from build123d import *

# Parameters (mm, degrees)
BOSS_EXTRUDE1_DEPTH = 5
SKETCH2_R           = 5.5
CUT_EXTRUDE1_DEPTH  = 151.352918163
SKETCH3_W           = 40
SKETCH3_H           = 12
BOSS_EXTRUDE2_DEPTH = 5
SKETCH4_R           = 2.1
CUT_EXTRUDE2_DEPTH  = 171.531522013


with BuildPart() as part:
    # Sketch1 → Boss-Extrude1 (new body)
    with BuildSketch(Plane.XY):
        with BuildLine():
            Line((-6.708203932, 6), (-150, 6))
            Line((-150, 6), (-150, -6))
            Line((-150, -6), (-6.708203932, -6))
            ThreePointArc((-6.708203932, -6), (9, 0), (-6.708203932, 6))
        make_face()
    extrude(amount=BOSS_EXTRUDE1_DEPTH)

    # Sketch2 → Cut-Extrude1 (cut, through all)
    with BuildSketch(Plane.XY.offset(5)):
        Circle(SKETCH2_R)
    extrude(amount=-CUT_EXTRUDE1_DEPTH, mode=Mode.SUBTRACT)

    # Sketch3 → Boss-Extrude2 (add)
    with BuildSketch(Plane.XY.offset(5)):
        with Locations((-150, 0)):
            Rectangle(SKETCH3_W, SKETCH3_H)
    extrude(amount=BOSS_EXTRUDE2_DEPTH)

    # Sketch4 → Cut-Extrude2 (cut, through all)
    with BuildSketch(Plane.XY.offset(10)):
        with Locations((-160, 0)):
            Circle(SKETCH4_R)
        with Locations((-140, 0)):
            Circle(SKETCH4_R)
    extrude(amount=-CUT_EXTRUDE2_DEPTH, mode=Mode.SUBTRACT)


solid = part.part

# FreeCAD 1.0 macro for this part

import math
import FreeCAD as App
import Part
import Sketcher
from FreeCAD import Vector

doc = App.newDocument("Part")
body = doc.addObject("PartDesign::Body", "Body")

# Sketch on XY plane
sketch1 = doc.addObject("Sketcher::SketchObject", "Sketch")
body.addObject(sketch1)
sketch1.AttachmentSupport = (doc.XY_Plane, [""])
sketch1.MapMode = "FlatFace"
sketch1.addGeometry([
    Part.LineSegment(Vector(-7, 6, 0), Vector(-150, 6, 0)),
    Part.LineSegment(Vector(-150, 6, 0), Vector(-150, -6, 0)),
    Part.LineSegment(Vector(-150, -6, 0), Vector(-7, -6, 0)),
    Part.ArcOfCircle(Part.Circle(Vector(0, 0, 0), Vector(0, 0, 1), 9), math.radians(-138), math.radians(138)),
], False)
sketch1.addConstraint([
    Sketcher.Constraint("Coincident", 0, 2, 1, 1),
    Sketcher.Constraint("Coincident", 1, 2, 2, 1),
    Sketcher.Constraint("Coincident", 2, 2, 3, 1),
    Sketcher.Constraint("Coincident", 3, 2, 0, 1),
    Sketcher.Constraint("Horizontal", 0),
    Sketcher.Constraint("Vertical", 1),
    Sketcher.Constraint("Horizontal", 2),
    Sketcher.Constraint("Coincident", 3, 3, -1, 1),
    Sketcher.Constraint("Vertical", 2, 2, 3, 2),
    Sketcher.Constraint("Radius", 3, 9.0),
    Sketcher.Constraint("DistanceY", 1, 2, 1, 1, 12.0),
    Sketcher.Constraint("DistanceX", 0, 2, -1, 1, 150.0),
])
pad1 = doc.addObject("PartDesign::Pad", "Pad")
body.addObject(pad1)
pad1.Profile = sketch1
pad1.Length = 5

# Sketch on XY plane
sketch2 = doc.addObject("Sketcher::SketchObject", "Sketch001")
body.addObject(sketch2)
sketch2.AttachmentSupport = (doc.XY_Plane, [""])
sketch2.MapMode = "FlatFace"
sketch2.AttachmentOffset = App.Placement(Vector(0, 0, 5), App.Rotation())
sketch2.addGeometry(Part.Circle(Vector(0, 0, 0), Vector(0, 0, 1), 6), False)
sketch2.addConstraint([
    Sketcher.Constraint("Coincident", 0, 3, -1, 1),
    Sketcher.Constraint("Diameter", 0, 11.0),
])
pocket1 = doc.addObject("PartDesign::Pocket", "Pocket")
body.addObject(pocket1)
pocket1.Profile = sketch2
pocket1.Type = "ThroughAll"

# Sketch on XY plane
sketch3 = doc.addObject("Sketcher::SketchObject", "Sketch002")
body.addObject(sketch3)
sketch3.AttachmentSupport = (doc.XY_Plane, [""])
sketch3.MapMode = "FlatFace"
sketch3.AttachmentOffset = App.Placement(Vector(0, 0, 5), App.Rotation())
sketch3.addGeometry([
    Part.LineSegment(Vector(-170, 6, 0), Vector(-170, -6, 0)),
    Part.LineSegment(Vector(-170, -6, 0), Vector(-130, -6, 0)),
    Part.LineSegment(Vector(-130, -6, 0), Vector(-130, 6, 0)),
    Part.LineSegment(Vector(-130, 6, 0), Vector(-170, 6, 0)),
], False)
sketch3.addConstraint([
    Sketcher.Constraint("Coincident", 0, 2, 1, 1),
    Sketcher.Constraint("Coincident", 1, 2, 2, 1),
    Sketcher.Constraint("Coincident", 2, 2, 3, 1),
    Sketcher.Constraint("Coincident", 3, 2, 0, 1),
    Sketcher.Constraint("Vertical", 0),
    Sketcher.Constraint("Horizontal", 1),
    Sketcher.Constraint("Vertical", 2),
    Sketcher.Constraint("Horizontal", 3),
    Sketcher.Constraint("DistanceX", 1, 1, 1, 2, 40.0),
    Sketcher.Constraint("DistanceY", 0, 2, 0, 1, 12.0),
    Sketcher.Constraint("DistanceX", 0, 2, -1, 1, 170.0),
    Sketcher.Constraint("DistanceY", 0, 2, -1, 1, 6.0),
])
pad2 = doc.addObject("PartDesign::Pad", "Pad001")
body.addObject(pad2)
pad2.Profile = sketch3
pad2.Length = 5

# Sketch on XY plane
sketch4 = doc.addObject("Sketcher::SketchObject", "Sketch003")
body.addObject(sketch4)
sketch4.AttachmentSupport = (doc.XY_Plane, [""])
sketch4.MapMode = "FlatFace"
sketch4.AttachmentOffset = App.Placement(Vector(0, 0, 10), App.Rotation())
sketch4.addGeometry([
    Part.Circle(Vector(-160, 0, 0), Vector(0, 0, 1), 2.1),
    Part.Circle(Vector(-140, 0, 0), Vector(0, 0, 1), 2.1),
], False)
sketch4.addConstraint([
    Sketcher.Constraint("Equal", 0, 1),
    Sketcher.Constraint("PointOnObject", 0, 3, -1),
    Sketcher.Constraint("PointOnObject", 1, 3, -1),
    Sketcher.Constraint("Diameter", 0, 4.2),
    Sketcher.Constraint("DistanceX", 0, 3, -1, 1, 160.0),
    Sketcher.Constraint("DistanceX", 1, 3, -1, 1, 140.0),
])
pocket2 = doc.addObject("PartDesign::Pocket", "Pocket001")
body.addObject(pocket2)
pocket2.Profile = sketch4
pocket2.Type = "ThroughAll"

doc.recompute()
